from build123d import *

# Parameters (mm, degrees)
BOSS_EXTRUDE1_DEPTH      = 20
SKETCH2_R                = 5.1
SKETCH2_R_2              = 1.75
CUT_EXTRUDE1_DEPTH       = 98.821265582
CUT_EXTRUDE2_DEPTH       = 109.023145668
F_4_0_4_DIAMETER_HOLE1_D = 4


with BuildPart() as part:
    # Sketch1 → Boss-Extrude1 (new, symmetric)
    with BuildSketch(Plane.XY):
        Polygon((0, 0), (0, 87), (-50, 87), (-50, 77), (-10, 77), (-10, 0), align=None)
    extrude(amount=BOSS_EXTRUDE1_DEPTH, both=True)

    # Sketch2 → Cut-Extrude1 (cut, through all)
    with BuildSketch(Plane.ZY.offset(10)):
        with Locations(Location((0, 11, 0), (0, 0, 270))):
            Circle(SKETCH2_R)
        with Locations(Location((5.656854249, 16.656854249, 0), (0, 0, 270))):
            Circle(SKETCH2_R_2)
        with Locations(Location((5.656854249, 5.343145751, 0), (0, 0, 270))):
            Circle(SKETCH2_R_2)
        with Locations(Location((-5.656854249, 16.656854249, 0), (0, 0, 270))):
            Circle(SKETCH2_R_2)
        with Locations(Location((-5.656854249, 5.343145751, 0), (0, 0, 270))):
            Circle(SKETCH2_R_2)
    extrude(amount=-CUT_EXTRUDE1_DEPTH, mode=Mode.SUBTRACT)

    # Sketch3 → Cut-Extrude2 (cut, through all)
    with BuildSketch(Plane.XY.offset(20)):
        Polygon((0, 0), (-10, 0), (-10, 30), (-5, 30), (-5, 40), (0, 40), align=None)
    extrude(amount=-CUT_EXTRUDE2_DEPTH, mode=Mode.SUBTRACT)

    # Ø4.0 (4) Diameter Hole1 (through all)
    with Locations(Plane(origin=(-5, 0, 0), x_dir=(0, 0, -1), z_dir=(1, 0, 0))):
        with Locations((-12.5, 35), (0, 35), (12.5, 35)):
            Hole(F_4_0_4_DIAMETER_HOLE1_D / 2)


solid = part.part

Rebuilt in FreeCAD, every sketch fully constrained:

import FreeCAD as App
import Part
import Sketcher

V = App.Vector
Q = App.Units.Quantity


def add_polygon(sketch, points):
    """Adds a closed chain of lines whose ends are joined by coincident constraints."""
    first, n = sketch.GeometryCount, len(points)
    for a, b in zip(points, points[1:] + points[:1]):
        sketch.addGeometry(Part.LineSegment(App.Vector(*a, 0), App.Vector(*b, 0)), False)
    for i in range(n):
        sketch.addConstraint(Sketcher.Constraint("Coincident", first + i, 2, first + (i + 1) % n, 1))

doc = App.newDocument("Part")
body = doc.addObject("PartDesign::Body", "Body")

# Sketch on XY plane
sketch1 = body.newObject("Sketcher::SketchObject", "Sketch")
sketch1.AttachmentSupport = (doc.getObject("XY_Plane"), [""])
sketch1.MapMode = "FlatFace"
add_polygon(sketch1, [(0, 0), (0, 87), (-50, 87), (-50, 77), (-10, 77), (-10, 0)])  # lines 0-5
sketch1.addConstraint(Sketcher.Constraint("Vertical", 0))
sketch1.addConstraint(Sketcher.Constraint("Horizontal", 1))
sketch1.addConstraint(Sketcher.Constraint("Vertical", 2))
sketch1.addConstraint(Sketcher.Constraint("Horizontal", 3))
sketch1.addConstraint(Sketcher.Constraint("Vertical", 4))
sketch1.addConstraint(Sketcher.Constraint("Horizontal", 5))
sketch1.addConstraint(Sketcher.Constraint("Coincident", 5, 2, -1, 1))
sketch1.addConstraint(Sketcher.Constraint("Equal", 5, 2))
sketch1.addConstraint(Sketcher.Constraint("DistanceX", 1, 2, 1, 1, Q("50 mm")))
sketch1.addConstraint(Sketcher.Constraint("DistanceX", 3, 1, 3, 2, Q("40 mm")))
sketch1.addConstraint(Sketcher.Constraint("DistanceY", 0, 1, 0, 2, Q("87 mm")))
pad1 = body.newObject("PartDesign::Pad", "Pad")
pad1.Profile = sketch1
pad1.Length = 40
pad1.Midplane = True

# Sketch on YZ plane
sketch2 = body.newObject("Sketcher::SketchObject", "Sketch001")
sketch2.AttachmentSupport = (doc.getObject("YZ_Plane"), [""])
sketch2.MapMode = "FlatFace"
sketch2.AttachmentOffset = App.Placement(V(0, 0, -10), App.Rotation())
sketch2.addGeometry(Part.Circle(V(11, 0, 0), V(0, 0, 1), 5.1), False)
sketch2.addGeometry(Part.Circle(V(16.7, 5.7, 0), V(0, 0, 1), 1.8), False)
sketch2.addGeometry(Part.Circle(V(5.3, 5.7, 0), V(0, 0, 1), 1.8), False)
sketch2.addGeometry(Part.Circle(V(16.7, -5.7, 0), V(0, 0, 1), 1.8), False)
sketch2.addGeometry(Part.Circle(V(5.3, -5.7, 0), V(0, 0, 1), 1.8), False)
sketch2.addConstraint(Sketcher.Constraint("Equal", 1, 2))
sketch2.addConstraint(Sketcher.Constraint("Equal", 2, 3))
sketch2.addConstraint(Sketcher.Constraint("Equal", 3, 4))
sketch2.addConstraint(Sketcher.Constraint("Symmetric", 1, 3, 3, 3, -1))
sketch2.addConstraint(Sketcher.Constraint("Symmetric", 2, 3, 4, 3, -1))
sketch2.addConstraint(Sketcher.Constraint("PointOnObject", 0, 3, -1))
sketch2.addConstraint(Sketcher.Constraint("Horizontal", 1, 3, 2, 3))
sketch2.addConstraint(Sketcher.Constraint("Diameter", 0, Q("10.2 mm")))
sketch2.addConstraint(Sketcher.Constraint("Diameter", 1, Q("3.5 mm")))
sketch2.addConstraint(Sketcher.Constraint("DistanceX", -1, 1, 0, 3, Q("11 mm")))
sketch2.addConstraint(Sketcher.Constraint("DistanceX", 2, 3, 1, 3, Q("11.313708 mm")))
sketch2.addConstraint(Sketcher.Constraint("DistanceY", 3, 3, 1, 3, Q("11.313708 mm")))
sketch2.addConstraint(Sketcher.Constraint("DistanceX", -1, 1, 1, 3, Q("16.656854 mm")))
pocket1 = body.newObject("PartDesign::Pocket", "Pocket")
pocket1.Profile = sketch2
pocket1.Type = "ThroughAll"
pocket1.Reversed = True

# Sketch on XY plane
sketch3 = body.newObject("Sketcher::SketchObject", "Sketch002")
sketch3.AttachmentSupport = (doc.getObject("XY_Plane"), [""])
sketch3.MapMode = "FlatFace"
sketch3.AttachmentOffset = App.Placement(V(0, 0, 20), App.Rotation())
add_polygon(sketch3, [(-10, 0), (0, 0), (0, 40), (-5, 40), (-5, 30), (-10, 30)])  # lines 0-5
sketch3.addConstraint(Sketcher.Constraint("Horizontal", 0))
sketch3.addConstraint(Sketcher.Constraint("Vertical", 1))
sketch3.addConstraint(Sketcher.Constraint("Horizontal", 2))
sketch3.addConstraint(Sketcher.Constraint("Vertical", 3))
sketch3.addConstraint(Sketcher.Constraint("Horizontal", 4))
sketch3.addConstraint(Sketcher.Constraint("Vertical", 5))
sketch3.addConstraint(Sketcher.Constraint("Coincident", 0, 2, -1, 1))
sketch3.addConstraint(Sketcher.Constraint("Equal", 2, 4))
sketch3.addConstraint(Sketcher.Constraint("Equal", 0, 3))
sketch3.addConstraint(Sketcher.Constraint("DistanceX", 0, 1, 0, 2, Q("10 mm")))
sketch3.addConstraint(Sketcher.Constraint("DistanceY", 1, 1, 1, 2, Q("40 mm")))
pocket2 = body.newObject("PartDesign::Pocket", "Pocket001")
pocket2.Profile = sketch3
pocket2.Type = "ThroughAll"

# Sketch on YZ plane
sketch4 = body.newObject("Sketcher::SketchObject", "Sketch003")
sketch4.AttachmentSupport = (doc.getObject("YZ_Plane"), [""])
sketch4.MapMode = "FlatFace"
sketch4.AttachmentOffset = App.Placement(V(0, 0, -5), App.Rotation())
sketch4.addGeometry(Part.Circle(V(35, 12.5, 0), V(0, 0, 1), 2), False)
sketch4.addGeometry(Part.Circle(V(35, 0, 0), V(0, 0, 1), 2), False)
sketch4.addGeometry(Part.Circle(V(35, -12.5, 0), V(0, 0, 1), 2), False)
sketch4.addConstraint(Sketcher.Constraint("Equal", 0, 1))
sketch4.addConstraint(Sketcher.Constraint("Equal", 1, 2))
sketch4.addConstraint(Sketcher.Constraint("Symmetric", 0, 3, 2, 3, -1))
sketch4.addConstraint(Sketcher.Constraint("PointOnObject", 1, 3, -1))
sketch4.addConstraint(Sketcher.Constraint("Vertical", 0, 3, 1, 3))
sketch4.addConstraint(Sketcher.Constraint("Diameter", 0, Q("4 mm")))
sketch4.addConstraint(Sketcher.Constraint("DistanceX", -1, 1, 0, 3, Q("35 mm")))
sketch4.addConstraint(Sketcher.Constraint("DistanceY", 2, 3, 0, 3, Q("25 mm")))
doc.recompute()
hole = body.newObject("PartDesign::Hole", "Hole")
hole.Profile = sketch4
hole.ThreadType = "None"
hole.Diameter = 4
hole.DepthType = "ThroughAll"

doc.recompute()
